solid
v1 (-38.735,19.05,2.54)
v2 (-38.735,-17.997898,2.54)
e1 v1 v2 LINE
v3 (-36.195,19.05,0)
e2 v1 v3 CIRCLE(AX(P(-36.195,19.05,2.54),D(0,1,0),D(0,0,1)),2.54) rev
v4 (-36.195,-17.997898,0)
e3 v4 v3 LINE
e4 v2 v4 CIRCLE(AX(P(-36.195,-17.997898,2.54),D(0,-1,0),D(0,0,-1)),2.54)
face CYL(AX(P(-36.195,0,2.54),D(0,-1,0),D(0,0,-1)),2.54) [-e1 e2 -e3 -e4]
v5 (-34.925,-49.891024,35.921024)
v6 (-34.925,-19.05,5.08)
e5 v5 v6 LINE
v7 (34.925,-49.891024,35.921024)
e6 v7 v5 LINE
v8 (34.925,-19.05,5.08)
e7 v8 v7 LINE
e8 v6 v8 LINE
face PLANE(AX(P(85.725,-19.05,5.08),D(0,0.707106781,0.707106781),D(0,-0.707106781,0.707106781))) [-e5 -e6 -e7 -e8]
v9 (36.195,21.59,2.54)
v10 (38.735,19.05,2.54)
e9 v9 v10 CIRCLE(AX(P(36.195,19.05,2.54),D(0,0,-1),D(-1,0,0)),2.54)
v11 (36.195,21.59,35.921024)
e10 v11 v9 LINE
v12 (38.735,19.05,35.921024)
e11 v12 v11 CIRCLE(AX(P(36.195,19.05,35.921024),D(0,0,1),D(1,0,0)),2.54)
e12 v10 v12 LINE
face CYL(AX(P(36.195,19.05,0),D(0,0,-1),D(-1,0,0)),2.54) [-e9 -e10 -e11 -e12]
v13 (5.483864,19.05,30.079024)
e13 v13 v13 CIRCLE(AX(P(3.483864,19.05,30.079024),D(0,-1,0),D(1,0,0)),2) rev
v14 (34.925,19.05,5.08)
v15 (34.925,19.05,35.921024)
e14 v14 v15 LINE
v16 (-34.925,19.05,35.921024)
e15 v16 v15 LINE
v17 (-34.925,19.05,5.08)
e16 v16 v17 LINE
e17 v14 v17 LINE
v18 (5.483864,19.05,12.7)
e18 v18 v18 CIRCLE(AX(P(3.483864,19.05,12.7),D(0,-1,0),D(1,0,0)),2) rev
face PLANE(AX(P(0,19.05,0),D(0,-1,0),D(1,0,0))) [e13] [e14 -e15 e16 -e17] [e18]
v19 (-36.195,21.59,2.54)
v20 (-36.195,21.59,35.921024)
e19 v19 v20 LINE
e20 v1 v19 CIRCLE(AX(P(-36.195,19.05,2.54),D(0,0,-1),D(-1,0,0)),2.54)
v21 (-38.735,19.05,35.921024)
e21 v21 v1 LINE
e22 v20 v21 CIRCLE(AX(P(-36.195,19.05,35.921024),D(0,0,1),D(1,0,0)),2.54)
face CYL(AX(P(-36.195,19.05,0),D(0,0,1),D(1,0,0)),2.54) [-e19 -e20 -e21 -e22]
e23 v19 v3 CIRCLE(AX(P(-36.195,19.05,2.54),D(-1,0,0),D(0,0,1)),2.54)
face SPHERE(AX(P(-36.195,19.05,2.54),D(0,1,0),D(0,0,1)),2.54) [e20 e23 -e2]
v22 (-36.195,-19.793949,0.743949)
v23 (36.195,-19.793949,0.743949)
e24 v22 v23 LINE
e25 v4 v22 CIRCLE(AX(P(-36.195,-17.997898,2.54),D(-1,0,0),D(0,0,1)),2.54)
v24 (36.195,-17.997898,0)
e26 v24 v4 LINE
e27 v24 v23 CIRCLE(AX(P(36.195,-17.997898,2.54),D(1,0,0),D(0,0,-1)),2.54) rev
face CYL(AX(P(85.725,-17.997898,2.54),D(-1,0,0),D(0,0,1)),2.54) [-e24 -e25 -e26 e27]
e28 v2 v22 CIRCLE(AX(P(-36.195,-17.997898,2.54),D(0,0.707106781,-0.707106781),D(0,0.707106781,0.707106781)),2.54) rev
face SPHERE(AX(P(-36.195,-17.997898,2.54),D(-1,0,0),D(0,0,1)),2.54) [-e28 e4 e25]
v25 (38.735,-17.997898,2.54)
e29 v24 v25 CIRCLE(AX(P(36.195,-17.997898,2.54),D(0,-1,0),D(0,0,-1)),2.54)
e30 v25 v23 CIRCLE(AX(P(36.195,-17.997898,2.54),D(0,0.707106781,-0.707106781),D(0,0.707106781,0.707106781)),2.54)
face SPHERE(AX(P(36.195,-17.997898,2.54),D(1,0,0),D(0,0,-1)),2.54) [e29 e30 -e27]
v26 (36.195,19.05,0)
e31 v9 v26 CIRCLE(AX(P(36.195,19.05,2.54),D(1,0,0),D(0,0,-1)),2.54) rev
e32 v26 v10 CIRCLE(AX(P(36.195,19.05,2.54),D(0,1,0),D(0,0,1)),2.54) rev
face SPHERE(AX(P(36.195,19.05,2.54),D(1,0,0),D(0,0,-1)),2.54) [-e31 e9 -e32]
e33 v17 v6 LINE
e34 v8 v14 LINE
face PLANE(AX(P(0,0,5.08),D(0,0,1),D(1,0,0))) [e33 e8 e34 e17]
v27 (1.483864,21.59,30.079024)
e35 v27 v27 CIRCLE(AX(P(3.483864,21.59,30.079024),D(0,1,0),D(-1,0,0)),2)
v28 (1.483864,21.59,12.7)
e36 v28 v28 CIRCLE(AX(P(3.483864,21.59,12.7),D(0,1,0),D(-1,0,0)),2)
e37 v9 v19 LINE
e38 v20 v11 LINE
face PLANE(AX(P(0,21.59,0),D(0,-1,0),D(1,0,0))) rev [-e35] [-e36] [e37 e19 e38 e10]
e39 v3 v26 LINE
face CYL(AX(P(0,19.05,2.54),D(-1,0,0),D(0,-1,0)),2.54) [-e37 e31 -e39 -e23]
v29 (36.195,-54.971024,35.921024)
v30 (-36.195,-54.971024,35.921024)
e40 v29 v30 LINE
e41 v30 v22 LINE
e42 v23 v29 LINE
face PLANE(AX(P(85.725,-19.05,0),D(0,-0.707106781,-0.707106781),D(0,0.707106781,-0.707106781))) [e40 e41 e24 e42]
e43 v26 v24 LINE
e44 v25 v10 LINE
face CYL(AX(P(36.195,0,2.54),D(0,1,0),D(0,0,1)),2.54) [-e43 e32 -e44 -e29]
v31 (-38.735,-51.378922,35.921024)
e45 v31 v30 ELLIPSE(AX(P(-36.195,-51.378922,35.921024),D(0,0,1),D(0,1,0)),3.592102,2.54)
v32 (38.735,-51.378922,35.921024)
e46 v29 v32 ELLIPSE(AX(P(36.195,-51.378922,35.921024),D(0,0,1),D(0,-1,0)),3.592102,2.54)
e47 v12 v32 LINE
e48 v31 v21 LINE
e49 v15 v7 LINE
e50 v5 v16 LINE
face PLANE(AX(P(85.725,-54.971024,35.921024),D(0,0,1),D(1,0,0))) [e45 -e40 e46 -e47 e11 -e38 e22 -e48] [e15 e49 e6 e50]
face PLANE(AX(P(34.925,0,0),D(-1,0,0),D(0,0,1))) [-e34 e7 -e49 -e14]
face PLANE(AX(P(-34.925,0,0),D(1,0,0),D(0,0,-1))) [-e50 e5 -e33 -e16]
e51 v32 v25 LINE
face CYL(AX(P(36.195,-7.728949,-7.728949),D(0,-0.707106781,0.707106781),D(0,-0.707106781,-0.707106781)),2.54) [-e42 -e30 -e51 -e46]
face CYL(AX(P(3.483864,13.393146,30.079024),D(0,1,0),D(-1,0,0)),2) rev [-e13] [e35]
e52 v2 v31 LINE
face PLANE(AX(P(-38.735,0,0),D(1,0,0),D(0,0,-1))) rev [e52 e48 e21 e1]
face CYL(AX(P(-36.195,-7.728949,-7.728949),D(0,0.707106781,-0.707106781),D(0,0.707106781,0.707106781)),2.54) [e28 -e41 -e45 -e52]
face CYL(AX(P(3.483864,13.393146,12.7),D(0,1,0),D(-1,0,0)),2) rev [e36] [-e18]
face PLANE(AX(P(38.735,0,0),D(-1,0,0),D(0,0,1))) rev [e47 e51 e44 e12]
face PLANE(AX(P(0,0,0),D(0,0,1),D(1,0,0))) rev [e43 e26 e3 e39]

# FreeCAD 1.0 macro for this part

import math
import FreeCAD as App
import Part
import Sketcher
Q = App.Units.Quantity


def edges_at(feature, points):
    """Names of the edges that pass closest to the given points."""
    edges = feature.Shape.Edges
    near = lambda p: min(range(len(edges)), key=lambda i: edges[i].distToShape(Part.Vertex(*p))[0])
    return sorted({f"Edge{near(p) + 1}" for p in points})

doc = App.newDocument("Part")
body = doc.addObject("PartDesign::Body", "Body")

# Sketch on XY plane
sketch1 = doc.addObject("Sketcher::SketchObject", "Sketch")
body.addObject(sketch1)
sketch1.AttachmentSupport = (doc.XY_Plane, [""])
sketch1.MapMode = "FlatFace"
sketch1.addGeometry(Part.LineSegment(App.Vector(-34.925, 19.05, 0), App.Vector(-34.925, -19.05, 0)), False)
sketch1.addGeometry(Part.LineSegment(App.Vector(-34.925, -19.05, 0), App.Vector(34.925, -19.05, 0)), False)
sketch1.addGeometry(Part.LineSegment(App.Vector(34.925, -19.05, 0), App.Vector(34.925, 19.05, 0)), False)
sketch1.addGeometry(Part.LineSegment(App.Vector(34.925, 19.05, 0), App.Vector(-34.925, 19.05, 0)), False)
sketch1.addConstraint(Sketcher.Constraint("Coincident", 0, 2, 1, 1))
sketch1.addConstraint(Sketcher.Constraint("Coincident", 1, 2, 2, 1))
sketch1.addConstraint(Sketcher.Constraint("Coincident", 2, 2, 3, 1))
sketch1.addConstraint(Sketcher.Constraint("Coincident", 3, 2, 0, 1))
sketch1.addConstraint(Sketcher.Constraint("Vertical", 0))
sketch1.addConstraint(Sketcher.Constraint("Horizontal", 1))
sketch1.addConstraint(Sketcher.Constraint("Vertical", 2))
sketch1.addConstraint(Sketcher.Constraint("Horizontal", 3))
sketch1.addConstraint(Sketcher.Constraint("Symmetric", 0, 2, 2, 2, -1, 1))
sketch1.addConstraint(Sketcher.Constraint("DistanceY", 0, 2, 0, 1, Q("1.5 in")))
sketch1.addConstraint(Sketcher.Constraint("DistanceX", 1, 1, 1, 2, Q("2.75 in")))
pad1 = doc.addObject("PartDesign::Pad", "Pad")
body.addObject(pad1)
pad1.Profile = sketch1
pad1.Length = Q("0.2 in")

# Sketch on YZ plane
sketch2 = doc.addObject("Sketcher::SketchObject", "Sketch001")
body.addObject(sketch2)
sketch2.AttachmentSupport = (doc.YZ_Plane, [""])
sketch2.MapMode = "FlatFace"
sketch2.AttachmentOffset = App.Placement(App.Vector(0, 0, -1.375 * 25.4), App.Rotation())
sketch2.addGeometry(Part.LineSegment(App.Vector(-49.891024, 35.921024, 0), App.Vector(-19.05, 5.08, 0)), False)
sketch2.addGeometry(Part.LineSegment(App.Vector(-19.05, 5.08, 0), App.Vector(-19.05, 0, 0)), False)
sketch2.addGeometry(Part.LineSegment(App.Vector(-19.05, 0, 0), App.Vector(-54.971024, 35.921024, 0)), False)
sketch2.addGeometry(Part.LineSegment(App.Vector(-54.971024, 35.921024, 0), App.Vector(-49.891024, 35.921024, 0)), False)
sketch2.addConstraint(Sketcher.Constraint("Coincident", 0, 2, 1, 1))
sketch2.addConstraint(Sketcher.Constraint("Coincident", 1, 2, 2, 1))
sketch2.addConstraint(Sketcher.Constraint("Coincident", 2, 2, 3, 1))
sketch2.addConstraint(Sketcher.Constraint("Coincident", 3, 2, 0, 1))
sketch2.addConstraint(Sketcher.Constraint("Vertical", 1))
sketch2.addConstraint(Sketcher.Constraint("Horizontal", 3))
sketch2.addConstraint(Sketcher.Constraint("PointOnObject", 1, 2, -1))
sketch2.addConstraint(Sketcher.Constraint("Parallel", 0, 2))
sketch2.addConstraint(Sketcher.Constraint("Equal", 3, 1))
sketch2.addConstraint(Sketcher.Constraint("Distance", 2, Q("2 in")))
sketch2.addConstraint(Sketcher.Constraint("DistanceX", 3, 1, 3, 2, Q("0.2 in")))
sketch2.addConstraint(Sketcher.Constraint("DistanceX", 0, 2, -1, 1, Q("0.75 in")))
pad2 = doc.addObject("PartDesign::Pad", "Pad001")
body.addObject(pad2)
pad2.Profile = sketch2
pad2.Length = Q("2.75 in")

# Sketch on YZ plane
sketch3 = doc.addObject("Sketcher::SketchObject", "Sketch002")
body.addObject(sketch3)
sketch3.AttachmentSupport = (doc.YZ_Plane, [""])
sketch3.MapMode = "FlatFace"
sketch3.AttachmentOffset = App.Placement(App.Vector(0, 0, 1.375 * 25.4), App.Rotation())
sketch3.addGeometry(Part.LineSegment(App.Vector(-54.971024, 35.921024, 0), App.Vector(-19.05, 0, 0)), False)
sketch3.addGeometry(Part.LineSegment(App.Vector(-19.05, 0, 0), App.Vector(19.05, 0, 0)), False)
sketch3.addGeometry(Part.LineSegment(App.Vector(19.05, 0, 0), App.Vector(19.05, 35.921024, 0)), False)
sketch3.addGeometry(Part.LineSegment(App.Vector(19.05, 35.921024, 0), App.Vector(-54.971024, 35.921024, 0)), False)
sketch3.addConstraint(Sketcher.Constraint("Coincident", 0, 2, 1, 1))
sketch3.addConstraint(Sketcher.Constraint("Coincident", 1, 2, 2, 1))
sketch3.addConstraint(Sketcher.Constraint("Coincident", 2, 2, 3, 1))
sketch3.addConstraint(Sketcher.Constraint("Coincident", 3, 2, 0, 1))
sketch3.addConstraint(Sketcher.Constraint("Horizontal", 1))
sketch3.addConstraint(Sketcher.Constraint("Vertical", 2))
sketch3.addConstraint(Sketcher.Constraint("Horizontal", 3))
sketch3.addConstraint(Sketcher.Constraint("Symmetric", 0, 2, 1, 2, -1, 1))
sketch3.addConstraint(Sketcher.Constraint("Distance", 0, Q("2 in")))
sketch3.addConstraint(Sketcher.Constraint("DistanceX", 1, 1, 1, 2, Q("1.5 in")))
sketch3.addConstraint(Sketcher.Constraint("Angle", 0, Q("-45 deg")))
pad3 = doc.addObject("PartDesign::Pad", "Pad002")
body.addObject(pad3)
pad3.Profile = sketch3
pad3.Length = Q("0.15 in")

# Sketch on YZ plane
sketch4 = doc.addObject("Sketcher::SketchObject", "Sketch003")
body.addObject(sketch4)
sketch4.AttachmentSupport = (doc.YZ_Plane, [""])
sketch4.MapMode = "FlatFace"
sketch4.AttachmentOffset = App.Placement(App.Vector(0, 0, -1.375 * 25.4), App.Rotation())
sketch4.addGeometry(Part.LineSegment(App.Vector(19.05, 35.921024, 0), App.Vector(19.05, 0, 0)), False)
sketch4.addGeometry(Part.LineSegment(App.Vector(19.05, 0, 0), App.Vector(-19.05, 0, 0)), False)
sketch4.addGeometry(Part.LineSegment(App.Vector(-19.05, 0, 0), App.Vector(-54.971024, 35.921024, 0)), False)
sketch4.addGeometry(Part.LineSegment(App.Vector(-54.971024, 35.921024, 0), App.Vector(19.05, 35.921024, 0)), False)
sketch4.addConstraint(Sketcher.Constraint("Coincident", 0, 2, 1, 1))
sketch4.addConstraint(Sketcher.Constraint("Coincident", 1, 2, 2, 1))
sketch4.addConstraint(Sketcher.Constraint("Coincident", 2, 2, 3, 1))
sketch4.addConstraint(Sketcher.Constraint("Coincident", 3, 2, 0, 1))
sketch4.addConstraint(Sketcher.Constraint("Vertical", 0))
sketch4.addConstraint(Sketcher.Constraint("Horizontal", 1))
sketch4.addConstraint(Sketcher.Constraint("Horizontal", 3))
sketch4.addConstraint(Sketcher.Constraint("Symmetric", 0, 2, 1, 2, -1, 1))
sketch4.addConstraint(Sketcher.Constraint("Distance", 2, Q("2 in")))
sketch4.addConstraint(Sketcher.Constraint("DistanceX", 1, 2, 1, 1, Q("1.5 in")))
sketch4.addConstraint(Sketcher.Constraint("Angle", 2, Q("135 deg")))
pad4 = doc.addObject("PartDesign::Pad", "Pad003")
body.addObject(pad4)
pad4.Profile = sketch4
pad4.Length = Q("0.15 in")
pad4.Reversed = True

# Sketch on XZ plane
sketch5 = doc.addObject("Sketcher::SketchObject", "Sketch004")
body.addObject(sketch5)
sketch5.AttachmentSupport = (doc.XZ_Plane, [""])
sketch5.MapMode = "FlatFace"
sketch5.AttachmentOffset = App.Placement(App.Vector(0, 0, -0.75 * 25.4), App.Rotation())
sketch5.addGeometry(Part.LineSegment(App.Vector(-38.735, 0, 0), App.Vector(-38.735, 35.921024, 0)), False)
sketch5.addGeometry(Part.LineSegment(App.Vector(-38.735, 35.921024, 0), App.Vector(38.735, 35.921024, 0)), False)
sketch5.addGeometry(Part.LineSegment(App.Vector(38.735, 35.921024, 0), App.Vector(38.735, 0, 0)), False)
sketch5.addGeometry(Part.LineSegment(App.Vector(38.735, 0, 0), App.Vector(-38.735, 0, 0)), False)
sketch5.addConstraint(Sketcher.Constraint("Coincident", 0, 2, 1, 1))
sketch5.addConstraint(Sketcher.Constraint("Coincident", 1, 2, 2, 1))
sketch5.addConstraint(Sketcher.Constraint("Coincident", 2, 2, 3, 1))
sketch5.addConstraint(Sketcher.Constraint("Coincident", 3, 2, 0, 1))
sketch5.addConstraint(Sketcher.Constraint("Vertical", 0))
sketch5.addConstraint(Sketcher.Constraint("Horizontal", 1))
sketch5.addConstraint(Sketcher.Constraint("Vertical", 2))
sketch5.addConstraint(Sketcher.Constraint("Horizontal", 3))
sketch5.addConstraint(Sketcher.Constraint("Symmetric", 2, 2, 3, 2, -1, 1))
sketch5.addConstraint(Sketcher.Constraint("DistanceX", 1, 1, 1, 2, Q("3.05 in")))
sketch5.addConstraint(Sketcher.Constraint("DistanceY", 0, 1, 0, 2, Q("35.921024 mm")))
pad5 = doc.addObject("PartDesign::Pad", "Pad004")
body.addObject(pad5)
pad5.Profile = sketch5
pad5.Length = Q("0.1 in")
pad5.Reversed = True
doc.recompute()

fillet = doc.addObject("PartDesign::Fillet", "Fillet")
body.addObject(fillet)
fillet.Base = (pad5, edges_at(pad5, [
    (38.735, -37.011, 17.961),
    (38.735, 1.27, 0),
    (-38.735, 1.27, 0),
    (-38.735, -37.011, 17.961),
    (0, -19.05, 0),
    (38.735, 21.59, 17.961),
    (0, 21.59, 0),
    (-38.735, 21.59, 17.961),
]))
fillet.Radius = Q("0.1 in")

# Sketch on XZ plane
sketch6 = doc.addObject("Sketcher::SketchObject", "Sketch005")
body.addObject(sketch6)
sketch6.AttachmentSupport = (doc.XZ_Plane, [""])
sketch6.MapMode = "FlatFace"
sketch6.AttachmentOffset = App.Placement(App.Vector(0, 0, -0.85 * 25.4), App.Rotation())
sketch6.addGeometry(Part.ArcOfCircle(Part.Circle(App.Vector(3.483864, 12.7, 0), App.Vector(0, 0, 1), 2), math.radians(-90), math.radians(0)), False)
sketch6.addGeometry(Part.ArcOfCircle(Part.Circle(App.Vector(3.483864, 12.7, 0), App.Vector(0, 0, 1), 2), math.radians(90), math.radians(270)), False)
sketch6.addGeometry(Part.ArcOfCircle(Part.Circle(App.Vector(3.483864, 12.7, 0), App.Vector(0, 0, 1), 2), math.radians(0), math.radians(90)), False)
sketch6.addGeometry(Part.ArcOfCircle(Part.Circle(App.Vector(3.483864, 30.079024, 0), App.Vector(0, 0, 1), 2), math.radians(-90), math.radians(0)), False)
sketch6.addGeometry(Part.ArcOfCircle(Part.Circle(App.Vector(3.483864, 30.079024, 0), App.Vector(0, 0, 1), 2), math.radians(90), math.radians(270)), False)
sketch6.addGeometry(Part.ArcOfCircle(Part.Circle(App.Vector(3.483864, 30.079024, 0), App.Vector(0, 0, 1), 2), math.radians(0), math.radians(90)), False)
sketch6.addConstraint(Sketcher.Constraint("Tangent", 0, 1, 1, 2))
sketch6.addConstraint(Sketcher.Constraint("Tangent", 1, 1, 2, 2))
sketch6.addConstraint(Sketcher.Constraint("Tangent", 2, 1, 0, 2))
sketch6.addConstraint(Sketcher.Constraint("Tangent", 3, 1, 4, 2))
sketch6.addConstraint(Sketcher.Constraint("Tangent", 4, 1, 5, 2))
sketch6.addConstraint(Sketcher.Constraint("Tangent", 5, 1, 3, 2))
sketch6.addConstraint(Sketcher.Constraint("Equal", 2, 3))
sketch6.addConstraint(Sketcher.Constraint("Horizontal", 1, 3, 2, 1))
sketch6.addConstraint(Sketcher.Constraint("Horizontal", 4, 3, 5, 1))
sketch6.addConstraint(Sketcher.Constraint("Vertical", 2, 3, 3, 3))
sketch6.addConstraint(Sketcher.Constraint("Vertical", 5, 3, 0, 1))
sketch6.addConstraint(Sketcher.Constraint("Vertical", 0, 1, 1, 1))
sketch6.addConstraint(Sketcher.Constraint("Vertical", 1, 1, 3, 1))
sketch6.addConstraint(Sketcher.Constraint("Vertical", 3, 1, 4, 1))
sketch6.addConstraint(Sketcher.Constraint("DistanceY", -1, 1, 0, 3, Q("0.5 in")))
sketch6.addConstraint(Sketcher.Constraint("Radius", 0, Q("2 mm")))
sketch6.addConstraint(Sketcher.Constraint("DistanceX", -1, 1, 2, 1, Q("0.2159002 in")))
sketch6.addConstraint(Sketcher.Constraint("DistanceY", -1, 1, 3, 3, Q("30.079024 mm")))
pocket1 = doc.addObject("PartDesign::Pocket", "Pocket")
body.addObject(pocket1)
pocket1.Profile = sketch6
pocket1.Length = Q("0.1 in")
pocket1.Reversed = True

doc.recompute()
